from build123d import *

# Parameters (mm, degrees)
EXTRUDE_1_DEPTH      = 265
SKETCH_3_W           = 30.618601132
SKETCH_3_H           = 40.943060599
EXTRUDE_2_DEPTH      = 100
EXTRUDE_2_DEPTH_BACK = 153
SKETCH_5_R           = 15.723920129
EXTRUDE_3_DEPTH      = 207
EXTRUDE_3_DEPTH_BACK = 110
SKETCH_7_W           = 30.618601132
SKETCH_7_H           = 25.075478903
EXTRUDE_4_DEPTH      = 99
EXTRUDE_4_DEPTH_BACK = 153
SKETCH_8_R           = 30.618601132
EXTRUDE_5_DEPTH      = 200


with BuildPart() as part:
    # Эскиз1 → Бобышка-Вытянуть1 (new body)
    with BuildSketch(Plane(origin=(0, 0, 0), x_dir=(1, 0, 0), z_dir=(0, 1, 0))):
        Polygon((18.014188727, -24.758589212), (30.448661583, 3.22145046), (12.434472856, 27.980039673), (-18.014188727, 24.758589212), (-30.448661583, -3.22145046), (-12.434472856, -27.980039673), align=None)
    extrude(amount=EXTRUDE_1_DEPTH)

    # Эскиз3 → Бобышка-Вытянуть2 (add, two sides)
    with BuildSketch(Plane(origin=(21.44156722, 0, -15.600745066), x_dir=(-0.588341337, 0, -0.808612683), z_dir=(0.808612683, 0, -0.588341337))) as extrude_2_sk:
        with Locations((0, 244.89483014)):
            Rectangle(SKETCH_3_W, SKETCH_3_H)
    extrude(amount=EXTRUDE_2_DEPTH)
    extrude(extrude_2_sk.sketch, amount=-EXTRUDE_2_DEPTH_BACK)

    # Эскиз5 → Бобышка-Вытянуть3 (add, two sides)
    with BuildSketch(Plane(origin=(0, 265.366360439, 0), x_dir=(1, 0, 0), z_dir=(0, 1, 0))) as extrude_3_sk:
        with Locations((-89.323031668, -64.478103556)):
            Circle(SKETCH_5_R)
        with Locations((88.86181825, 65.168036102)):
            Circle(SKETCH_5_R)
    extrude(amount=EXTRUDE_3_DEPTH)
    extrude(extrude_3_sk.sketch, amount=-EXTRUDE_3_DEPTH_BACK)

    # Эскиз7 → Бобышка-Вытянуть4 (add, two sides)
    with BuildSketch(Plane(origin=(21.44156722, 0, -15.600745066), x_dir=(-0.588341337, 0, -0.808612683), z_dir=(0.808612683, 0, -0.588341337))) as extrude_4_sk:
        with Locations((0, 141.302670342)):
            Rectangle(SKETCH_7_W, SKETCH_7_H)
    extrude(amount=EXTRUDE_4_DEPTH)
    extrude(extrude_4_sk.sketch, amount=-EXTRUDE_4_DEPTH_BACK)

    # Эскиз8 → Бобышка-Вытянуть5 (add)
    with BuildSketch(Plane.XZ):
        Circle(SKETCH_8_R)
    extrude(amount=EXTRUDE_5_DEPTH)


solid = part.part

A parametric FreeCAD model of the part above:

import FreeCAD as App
import Part
import Sketcher

V = App.Vector
Q = App.Units.Quantity

doc = App.newDocument("Part")
body = doc.addObject("PartDesign::Body", "Body")

sketch1 = body.newObject("Sketcher::SketchObject", "Sketch")
sketch1.AttachmentSupport = (doc.getObject("XZ_Plane"), [""])
sketch1.MapMode = "FlatFace"
sketch1.addGeometry(Part.LineSegment(V(18, 25, 0), V(30, -3, 0)), False)
sketch1.addGeometry(Part.LineSegment(V(30, -3, 0), V(12, -28, 0)), False)
sketch1.addGeometry(Part.LineSegment(V(12, -28, 0), V(-18, -25, 0)), False)
sketch1.addGeometry(Part.LineSegment(V(-18, -25, 0), V(-30, 3, 0)), False)
sketch1.addGeometry(Part.LineSegment(V(-30, 3, 0), V(-12, 28, 0)), False)
sketch1.addGeometry(Part.LineSegment(V(-12, 28, 0), V(18, 25, 0)), False)
sketch1.addConstraint(Sketcher.Constraint("Coincident", 0, 2, 1, 1))
sketch1.addConstraint(Sketcher.Constraint("Coincident", 1, 2, 2, 1))
sketch1.addConstraint(Sketcher.Constraint("Coincident", 2, 2, 3, 1))
sketch1.addConstraint(Sketcher.Constraint("Coincident", 3, 2, 4, 1))
sketch1.addConstraint(Sketcher.Constraint("Coincident", 4, 2, 5, 1))
sketch1.addConstraint(Sketcher.Constraint("Coincident", 5, 2, 0, 1))
sketch1.addConstraint(Sketcher.Constraint("Symmetric", 0, 2, 3, 2, -1, 1))
sketch1.addConstraint(Sketcher.Constraint("Symmetric", 1, 2, 4, 2, -1, 1))
sketch1.addConstraint(Sketcher.Constraint("Symmetric", 2, 2, 5, 2, -1, 1))
sketch1.addConstraint(Sketcher.Constraint("Equal", 0, 1))
sketch1.addConstraint(Sketcher.Constraint("Equal", 1, 2))
sketch1.addConstraint(Sketcher.Constraint("Distance", 0, Q("30.618601 mm")))
sketch1.addConstraint(Sketcher.Constraint("DistanceY", 0, 2, 3, 2, Q("6.442901 mm")))
sketch1.addConstraint(Sketcher.Constraint("DistanceX", -1, 1, 0, 2, Q("30.448662 mm")))
sketch1.addConstraint(Sketcher.Constraint("DistanceY", 1, 2, -1, 1, Q("27.98004 mm")))
pad1 = body.newObject("PartDesign::Pad", "Pad")
pad1.Profile = sketch1
pad1.Length = 265
pad1.Reversed = True

sketch2 = body.newObject("Sketcher::SketchObject", "Sketch001")
sketch2.Placement = App.Placement(V(21.441567, 0, -15.600745), App.Rotation(V(-0.588341337, 0, -0.808612683), V(0, 1, 0), V(0.808612683, 0, -0.588341337), "ZXY"))
sketch2.addGeometry(Part.LineSegment(V(-15, 265, 0), V(-15, 224, 0)), False)
sketch2.addGeometry(Part.LineSegment(V(-15, 224, 0), V(15, 224, 0)), False)
sketch2.addGeometry(Part.LineSegment(V(15, 224, 0), V(15, 265, 0)), False)
sketch2.addGeometry(Part.LineSegment(V(15, 265, 0), V(-15, 265, 0)), False)
sketch2.addConstraint(Sketcher.Constraint("Coincident", 0, 2, 1, 1))
sketch2.addConstraint(Sketcher.Constraint("Coincident", 1, 2, 2, 1))
sketch2.addConstraint(Sketcher.Constraint("Coincident", 2, 2, 3, 1))
sketch2.addConstraint(Sketcher.Constraint("Coincident", 3, 2, 0, 1))
sketch2.addConstraint(Sketcher.Constraint("Vertical", 0))
sketch2.addConstraint(Sketcher.Constraint("Horizontal", 1))
sketch2.addConstraint(Sketcher.Constraint("Vertical", 2))
sketch2.addConstraint(Sketcher.Constraint("Horizontal", 3))
sketch2.addConstraint(Sketcher.Constraint("DistanceX", 1, 1, 1, 2, Q("30.618601 mm")))
sketch2.addConstraint(Sketcher.Constraint("DistanceY", 0, 2, 0, 1, Q("40.943061 mm")))
sketch2.addConstraint(Sketcher.Constraint("DistanceX", 0, 2, -1, 1, Q("15.309301 mm")))
sketch2.addConstraint(Sketcher.Constraint("DistanceY", -1, 1, 0, 2, Q("224.4233 mm")))
pad2 = body.newObject("PartDesign::Pad", "Pad001")
pad2.Profile = sketch2
pad2.Type = "TwoLengths"
pad2.Length = 100
pad2.Length2 = 153

sketch3 = body.newObject("Sketcher::SketchObject", "Sketch002")
sketch3.AttachmentSupport = (doc.getObject("XZ_Plane"), [""])
sketch3.MapMode = "FlatFace"
sketch3.AttachmentOffset = App.Placement(V(0, 0, -265.36636), App.Rotation())
sketch3.addGeometry(Part.Circle(V(-89, 64, 0), V(0, 0, 1), 16), False)
sketch3.addGeometry(Part.Circle(V(89, -65, 0), V(0, 0, 1), 16), False)
sketch3.addConstraint(Sketcher.Constraint("Equal", 0, 1))
sketch3.addConstraint(Sketcher.Constraint("Diameter", 0, Q("31.44784 mm")))
sketch3.addConstraint(Sketcher.Constraint("DistanceX", 0, 3, -1, 1, Q("89.323032 mm")))
sketch3.addConstraint(Sketcher.Constraint("DistanceX", -1, 1, 1, 3, Q("88.861818 mm")))
sketch3.addConstraint(Sketcher.Constraint("DistanceY", 1, 3, 0, 3, Q("129.64614 mm")))
sketch3.addConstraint(Sketcher.Constraint("DistanceY", -1, 1, 0, 3, Q("64.478104 mm")))
pad3 = body.newObject("PartDesign::Pad", "Pad002")
pad3.Profile = sketch3
pad3.Type = "TwoLengths"
pad3.Length = 207
pad3.Length2 = 110
pad3.Reversed = True

sketch4 = body.newObject("Sketcher::SketchObject", "Sketch003")
sketch4.Placement = App.Placement(V(21.441567, 0, -15.600745), App.Rotation(V(-0.588341337, 0, -0.808612683), V(0, 1, 0), V(0.808612683, 0, -0.588341337), "ZXY"))
sketch4.addGeometry(Part.LineSegment(V(-15, 154, 0), V(-15, 129, 0)), False)
sketch4.addGeometry(Part.LineSegment(V(-15, 129, 0), V(15, 129, 0)), False)
sketch4.addGeometry(Part.LineSegment(V(15, 129, 0), V(15, 154, 0)), False)
sketch4.addGeometry(Part.LineSegment(V(15, 154, 0), V(-15, 154, 0)), False)
sketch4.addConstraint(Sketcher.Constraint("Coincident", 0, 2, 1, 1))
sketch4.addConstraint(Sketcher.Constraint("Coincident", 1, 2, 2, 1))
sketch4.addConstraint(Sketcher.Constraint("Coincident", 2, 2, 3, 1))
sketch4.addConstraint(Sketcher.Constraint("Coincident", 3, 2, 0, 1))
sketch4.addConstraint(Sketcher.Constraint("Vertical", 0))
sketch4.addConstraint(Sketcher.Constraint("Horizontal", 1))
sketch4.addConstraint(Sketcher.Constraint("Vertical", 2))
sketch4.addConstraint(Sketcher.Constraint("Horizontal", 3))
sketch4.addConstraint(Sketcher.Constraint("DistanceX", 1, 1, 1, 2, Q("30.618601 mm")))
sketch4.addConstraint(Sketcher.Constraint("DistanceY", 0, 2, 0, 1, Q("25.075479 mm")))
sketch4.addConstraint(Sketcher.Constraint("DistanceX", 0, 2, -1, 1, Q("15.309301 mm")))
sketch4.addConstraint(Sketcher.Constraint("DistanceY", -1, 1, 0, 2, Q("128.764931 mm")))
pad4 = body.newObject("PartDesign::Pad", "Pad003")
pad4.Profile = sketch4
pad4.Type = "TwoLengths"
pad4.Length = 99
pad4.Length2 = 153

sketch5 = body.newObject("Sketcher::SketchObject", "Sketch004")
sketch5.AttachmentSupport = (doc.getObject("XZ_Plane"), [""])
sketch5.MapMode = "FlatFace"
sketch5.addGeometry(Part.Circle(V(0, 0, 0), V(0, 0, 1), 31), False)
sketch5.addConstraint(Sketcher.Constraint("Coincident", 0, 3, -1, 1))
sketch5.addConstraint(Sketcher.Constraint("Diameter", 0, Q("61.237202 mm")))
pad5 = body.newObject("PartDesign::Pad", "Pad004")
pad5.Profile = sketch5
pad5.Length = 200

doc.recompute()
